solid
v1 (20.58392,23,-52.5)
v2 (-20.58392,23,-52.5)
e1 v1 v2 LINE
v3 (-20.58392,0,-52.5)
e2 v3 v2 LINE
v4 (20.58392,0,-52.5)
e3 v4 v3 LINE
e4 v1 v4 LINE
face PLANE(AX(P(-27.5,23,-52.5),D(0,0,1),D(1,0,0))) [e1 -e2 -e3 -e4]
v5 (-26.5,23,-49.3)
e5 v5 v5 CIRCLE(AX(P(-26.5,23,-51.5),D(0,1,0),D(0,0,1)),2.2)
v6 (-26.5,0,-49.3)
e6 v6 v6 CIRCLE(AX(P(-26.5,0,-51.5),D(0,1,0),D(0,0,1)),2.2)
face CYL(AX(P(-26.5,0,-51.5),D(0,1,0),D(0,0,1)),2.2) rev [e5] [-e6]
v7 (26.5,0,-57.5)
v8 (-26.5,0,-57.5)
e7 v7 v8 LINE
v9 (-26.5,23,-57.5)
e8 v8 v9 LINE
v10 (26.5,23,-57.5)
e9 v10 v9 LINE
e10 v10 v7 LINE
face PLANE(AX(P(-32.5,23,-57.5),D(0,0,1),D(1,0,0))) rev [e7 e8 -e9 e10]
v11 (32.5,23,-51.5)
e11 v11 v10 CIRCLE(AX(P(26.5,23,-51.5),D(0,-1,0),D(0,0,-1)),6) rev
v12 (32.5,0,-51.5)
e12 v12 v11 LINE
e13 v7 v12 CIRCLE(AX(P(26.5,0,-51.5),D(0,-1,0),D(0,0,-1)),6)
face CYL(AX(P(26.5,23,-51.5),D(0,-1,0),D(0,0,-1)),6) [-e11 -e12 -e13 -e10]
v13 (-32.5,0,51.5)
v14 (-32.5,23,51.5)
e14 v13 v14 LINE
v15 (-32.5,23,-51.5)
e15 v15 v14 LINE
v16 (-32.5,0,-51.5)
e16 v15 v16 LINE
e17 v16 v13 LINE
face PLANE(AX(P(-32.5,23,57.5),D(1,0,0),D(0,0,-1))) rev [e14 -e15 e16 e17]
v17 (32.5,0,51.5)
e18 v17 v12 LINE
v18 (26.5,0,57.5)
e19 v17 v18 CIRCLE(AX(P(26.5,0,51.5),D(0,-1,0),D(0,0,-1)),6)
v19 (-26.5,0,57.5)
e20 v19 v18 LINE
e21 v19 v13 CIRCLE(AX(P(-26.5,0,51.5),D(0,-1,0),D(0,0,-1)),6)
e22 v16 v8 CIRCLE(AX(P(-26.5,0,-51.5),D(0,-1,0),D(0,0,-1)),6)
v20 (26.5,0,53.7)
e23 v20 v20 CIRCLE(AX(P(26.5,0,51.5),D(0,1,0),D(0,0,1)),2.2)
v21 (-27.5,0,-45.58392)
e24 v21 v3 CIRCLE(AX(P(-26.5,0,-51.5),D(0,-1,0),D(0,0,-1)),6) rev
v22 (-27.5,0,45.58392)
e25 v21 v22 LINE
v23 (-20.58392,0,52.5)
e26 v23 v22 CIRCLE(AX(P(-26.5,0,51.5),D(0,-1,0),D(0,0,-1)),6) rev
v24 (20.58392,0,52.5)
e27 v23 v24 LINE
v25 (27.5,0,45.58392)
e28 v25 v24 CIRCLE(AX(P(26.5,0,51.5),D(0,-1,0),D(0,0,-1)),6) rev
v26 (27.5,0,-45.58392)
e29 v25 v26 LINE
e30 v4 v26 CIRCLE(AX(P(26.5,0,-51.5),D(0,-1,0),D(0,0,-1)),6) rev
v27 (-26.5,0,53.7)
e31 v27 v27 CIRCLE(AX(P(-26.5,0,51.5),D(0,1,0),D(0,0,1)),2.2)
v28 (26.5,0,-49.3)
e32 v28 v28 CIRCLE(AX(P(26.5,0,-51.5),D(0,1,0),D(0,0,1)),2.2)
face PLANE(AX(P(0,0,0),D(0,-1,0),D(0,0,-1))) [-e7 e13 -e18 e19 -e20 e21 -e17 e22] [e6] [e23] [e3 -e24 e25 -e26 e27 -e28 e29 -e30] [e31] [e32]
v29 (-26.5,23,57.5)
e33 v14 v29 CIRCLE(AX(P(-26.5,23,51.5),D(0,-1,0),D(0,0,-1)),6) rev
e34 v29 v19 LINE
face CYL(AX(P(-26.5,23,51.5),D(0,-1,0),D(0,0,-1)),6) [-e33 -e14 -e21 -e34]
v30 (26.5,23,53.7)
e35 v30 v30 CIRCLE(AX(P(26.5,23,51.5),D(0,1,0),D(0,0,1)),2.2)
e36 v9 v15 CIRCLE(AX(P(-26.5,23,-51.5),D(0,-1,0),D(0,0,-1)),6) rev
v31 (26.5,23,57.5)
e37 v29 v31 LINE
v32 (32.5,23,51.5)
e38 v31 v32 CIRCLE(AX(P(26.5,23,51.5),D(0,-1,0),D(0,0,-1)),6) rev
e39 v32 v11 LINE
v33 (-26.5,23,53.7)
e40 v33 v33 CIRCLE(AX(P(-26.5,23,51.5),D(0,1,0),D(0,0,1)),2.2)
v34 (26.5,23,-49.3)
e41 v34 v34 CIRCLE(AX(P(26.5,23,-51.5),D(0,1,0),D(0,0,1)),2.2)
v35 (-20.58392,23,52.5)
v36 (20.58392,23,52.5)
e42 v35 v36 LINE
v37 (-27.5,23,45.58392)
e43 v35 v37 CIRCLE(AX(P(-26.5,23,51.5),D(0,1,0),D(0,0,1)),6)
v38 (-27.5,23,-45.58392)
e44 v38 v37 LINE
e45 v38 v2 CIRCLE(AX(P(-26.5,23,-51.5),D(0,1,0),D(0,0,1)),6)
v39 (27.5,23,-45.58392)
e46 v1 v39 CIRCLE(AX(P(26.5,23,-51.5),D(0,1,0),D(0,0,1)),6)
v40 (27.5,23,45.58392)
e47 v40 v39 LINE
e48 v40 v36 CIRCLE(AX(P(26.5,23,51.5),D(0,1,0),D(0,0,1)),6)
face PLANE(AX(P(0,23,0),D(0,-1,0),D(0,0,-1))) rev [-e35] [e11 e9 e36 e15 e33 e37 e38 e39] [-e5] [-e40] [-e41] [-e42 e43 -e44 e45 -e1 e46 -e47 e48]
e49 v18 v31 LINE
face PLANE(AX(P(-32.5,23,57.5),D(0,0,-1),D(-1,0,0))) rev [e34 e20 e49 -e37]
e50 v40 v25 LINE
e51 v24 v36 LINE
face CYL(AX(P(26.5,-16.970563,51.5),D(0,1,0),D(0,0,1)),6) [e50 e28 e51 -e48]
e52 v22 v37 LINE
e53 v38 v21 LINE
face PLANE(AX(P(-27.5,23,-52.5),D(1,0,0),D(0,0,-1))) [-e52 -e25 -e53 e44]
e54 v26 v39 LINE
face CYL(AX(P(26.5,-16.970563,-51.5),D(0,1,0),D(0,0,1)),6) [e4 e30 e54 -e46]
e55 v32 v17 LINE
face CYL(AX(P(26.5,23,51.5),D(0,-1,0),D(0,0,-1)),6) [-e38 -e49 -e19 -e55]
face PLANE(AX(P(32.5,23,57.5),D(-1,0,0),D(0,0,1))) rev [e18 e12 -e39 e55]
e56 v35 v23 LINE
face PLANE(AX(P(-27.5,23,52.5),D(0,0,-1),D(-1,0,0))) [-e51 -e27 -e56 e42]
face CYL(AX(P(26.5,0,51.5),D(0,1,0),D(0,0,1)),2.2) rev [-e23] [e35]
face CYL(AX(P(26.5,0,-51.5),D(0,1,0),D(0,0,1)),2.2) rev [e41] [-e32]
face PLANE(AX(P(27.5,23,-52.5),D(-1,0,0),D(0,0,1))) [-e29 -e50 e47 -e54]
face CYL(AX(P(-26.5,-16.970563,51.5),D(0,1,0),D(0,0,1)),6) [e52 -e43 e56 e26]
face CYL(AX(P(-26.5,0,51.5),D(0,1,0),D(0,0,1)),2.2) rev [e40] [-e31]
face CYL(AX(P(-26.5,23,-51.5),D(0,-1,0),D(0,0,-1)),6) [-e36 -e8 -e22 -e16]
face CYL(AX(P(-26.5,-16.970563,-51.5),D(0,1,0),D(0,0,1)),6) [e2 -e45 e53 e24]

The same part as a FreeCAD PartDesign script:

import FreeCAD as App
import Part
import Sketcher
Q = App.Units.Quantity


def edges_at(feature, points):
    """Names of the edges that pass closest to the given points."""
    edges = feature.Shape.Edges
    near = lambda p: min(range(len(edges)), key=lambda i: edges[i].distToShape(Part.Vertex(*p))[0])
    return sorted({f"Edge{near(p) + 1}" for p in points})

doc = App.newDocument("Part")
params = doc.addObject("Spreadsheet::Sheet", "Params")
for row, (alias, value) in enumerate([
    ("sketch1_width", "65 mm"),
    ("sketch1_width2", "55 mm"),
    ("sketch1_height", "115 mm"),
    ("sketch1_height2", "105 mm"),
    ("pad1_length", "23 mm"),
    ("fillet_radius", "6 mm"),
    ("sketch2_diameter", "12 mm"),
    ("pad2_length", "23 mm"),
    ("sketch3_diameter", "4.4 mm"),
    ("pocket1_length", "23 mm"),
], start=1):
    params.set(f"A{row}", alias)
    params.set(f"B{row}", "=" + value)
    params.setAlias(f"B{row}", alias)

body = doc.addObject("PartDesign::Body", "Body")

# Sketch on XZ plane
sketch1 = body.newObject("Sketcher::SketchObject", "Sketch")
sketch1.AttachmentSupport = (doc.getObject("XZ_Plane"), [""])
sketch1.MapMode = "FlatFace"
sketch1.addGeometry([
    Part.LineSegment(App.Vector(-32, -58, 0), App.Vector(-32, 58, 0)),  # 0
    Part.LineSegment(App.Vector(-32, 58, 0), App.Vector(32, 58, 0)),  # 1
    Part.LineSegment(App.Vector(32, 58, 0), App.Vector(32, -58, 0)),  # 2
    Part.LineSegment(App.Vector(32, -58, 0), App.Vector(-32, -58, 0)),  # 3
    Part.LineSegment(App.Vector(28, 52, 0), App.Vector(-28, 52, 0)),  # 4
    Part.LineSegment(App.Vector(-28, 52, 0), App.Vector(-28, -52, 0)),  # 5
    Part.LineSegment(App.Vector(-28, -52, 0), App.Vector(28, -52, 0)),  # 6
    Part.LineSegment(App.Vector(28, -52, 0), App.Vector(28, 52, 0)),  # 7
], False)
sketch1.addConstraint([
    Sketcher.Constraint("Coincident", 0, 2, 1, 1),
    Sketcher.Constraint("Coincident", 1, 2, 2, 1),
    Sketcher.Constraint("Coincident", 2, 2, 3, 1),
    Sketcher.Constraint("Coincident", 3, 2, 0, 1),
    Sketcher.Constraint("Coincident", 4, 2, 5, 1),
    Sketcher.Constraint("Coincident", 5, 2, 6, 1),
    Sketcher.Constraint("Coincident", 6, 2, 7, 1),
    Sketcher.Constraint("Coincident", 7, 2, 4, 1),
    Sketcher.Constraint("Vertical", 0),
    Sketcher.Constraint("Horizontal", 1),
    Sketcher.Constraint("Vertical", 2),
    Sketcher.Constraint("Horizontal", 3),
    Sketcher.Constraint("Horizontal", 4),
    Sketcher.Constraint("Vertical", 5),
    Sketcher.Constraint("Horizontal", 6),
    Sketcher.Constraint("Vertical", 7),
    Sketcher.Constraint("Symmetric", 0, 2, 2, 2, -1, 1),
    Sketcher.Constraint("Symmetric", 4, 2, 6, 2, -1, 1),
    Sketcher.Constraint("DistanceX", 1, 1, 1, 2, Q("65 mm")),
    Sketcher.Constraint("DistanceX", 4, 2, 4, 1, Q("55 mm")),
    Sketcher.Constraint("DistanceY", 0, 1, 0, 2, Q("115 mm")),
    Sketcher.Constraint("DistanceY", 5, 2, 5, 1, Q("105 mm")),
])
sketch1.setExpression("Constraints[18]", "Params.sketch1_width")
sketch1.setExpression("Constraints[19]", "Params.sketch1_width2")
sketch1.setExpression("Constraints[20]", "Params.sketch1_height")
sketch1.setExpression("Constraints[21]", "Params.sketch1_height2")
pad1 = body.newObject("PartDesign::Pad", "Pad")
pad1.Profile = sketch1
pad1.setExpression("Length", "Params.pad1_length")
pad1.Reversed = True
doc.recompute()

fillet = body.newObject("PartDesign::Fillet", "Fillet")
fillet.Base = (pad1, edges_at(pad1, [
    (32.5, 11.5, 57.5),
    (-32.5, 11.5, 57.5),
    (-32.5, 11.5, -57.5),
    (32.5, 11.5, -57.5),
]))
fillet.setExpression("Radius", "Params.fillet_radius")

# Sketch on XZ plane
sketch2 = body.newObject("Sketcher::SketchObject", "Sketch001")
sketch2.AttachmentSupport = (doc.getObject("XZ_Plane"), [""])
sketch2.MapMode = "FlatFace"
sketch2.AttachmentOffset = App.Placement(App.Vector(0, 0, -23), App.Rotation())
sketch2.addGeometry([
    Part.Circle(App.Vector(-26, -52, 0), App.Vector(0, 0, 1), 6),
    Part.Circle(App.Vector(26, -52, 0), App.Vector(0, 0, 1), 6),
    Part.Circle(App.Vector(-26, 52, 0), App.Vector(0, 0, 1), 6),
    Part.Circle(App.Vector(26, 52, 0), App.Vector(0, 0, 1), 6),
], False)
sketch2.addConstraint([
    Sketcher.Constraint("Equal", 0, 1),
    Sketcher.Constraint("Equal", 1, 2),
    Sketcher.Constraint("Equal", 2, 3),
    Sketcher.Constraint("Symmetric", 1, 3, 2, 3, -1, 1),
    Sketcher.Constraint("Symmetric", 0, 3, 3, 3, -1, 1),
    Sketcher.Constraint("Symmetric", 0, 3, 1, 3, -2),
    Sketcher.Constraint("Diameter", 0, Q("12 mm")),
    Sketcher.Constraint("DistanceX", 0, 3, 1, 3, Q("53 mm")),
    Sketcher.Constraint("DistanceY", 0, 3, 2, 3, Q("103 mm")),
])
sketch2.setExpression("Constraints[6]", "Params.sketch2_diameter")
pad2 = body.newObject("PartDesign::Pad", "Pad001")
pad2.Profile = sketch2
pad2.setExpression("Length", "Params.pad2_length")

# Sketch on XZ plane
sketch3 = body.newObject("Sketcher::SketchObject", "Sketch002")
sketch3.AttachmentSupport = (doc.getObject("XZ_Plane"), [""])
sketch3.MapMode = "FlatFace"
sketch3.AttachmentOffset = App.Placement(App.Vector(0, 0, -23), App.Rotation())
sketch3.addGeometry([
    Part.Circle(App.Vector(-26.5, -51.5, 0), App.Vector(0, 0, 1), 2.2),
    Part.Circle(App.Vector(26.5, -51.5, 0), App.Vector(0, 0, 1), 2.2),
    Part.Circle(App.Vector(26.5, 51.5, 0), App.Vector(0, 0, 1), 2.2),
    Part.Circle(App.Vector(-26.5, 51.5, 0), App.Vector(0, 0, 1), 2.2),
], False)
sketch3.addConstraint([
    Sketcher.Constraint("Equal", 0, 1),
    Sketcher.Constraint("Equal", 1, 2),
    Sketcher.Constraint("Equal", 2, 3),
    Sketcher.Constraint("Symmetric", 0, 3, 2, 3, -1, 1),
    Sketcher.Constraint("Symmetric", 1, 3, 3, 3, -1, 1),
    Sketcher.Constraint("Symmetric", 0, 3, 1, 3, -2),
    Sketcher.Constraint("Diameter", 0, Q("4.4 mm")),
    Sketcher.Constraint("DistanceX", 0, 3, 1, 3, Q("53 mm")),
    Sketcher.Constraint("DistanceY", 1, 3, 2, 3, Q("103 mm")),
])
sketch3.setExpression("Constraints[6]", "Params.sketch3_diameter")
pocket1 = body.newObject("PartDesign::Pocket", "Pocket")
pocket1.Profile = sketch3
pocket1.setExpression("Length", "Params.pocket1_length")
pocket1.Reversed = True

doc.recompute()
